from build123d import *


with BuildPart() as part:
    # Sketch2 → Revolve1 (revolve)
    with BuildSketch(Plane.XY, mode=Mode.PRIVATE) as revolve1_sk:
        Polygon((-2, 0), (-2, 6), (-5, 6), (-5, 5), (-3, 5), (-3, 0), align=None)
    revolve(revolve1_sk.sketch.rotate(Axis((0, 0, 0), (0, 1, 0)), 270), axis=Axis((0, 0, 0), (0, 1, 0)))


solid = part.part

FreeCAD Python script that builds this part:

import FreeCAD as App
import Part
import Sketcher
Q = App.Units.Quantity


def add_polygon(sketch, points):
    """Adds a closed chain of lines whose ends are joined by coincident constraints."""
    first, n = sketch.GeometryCount, len(points)
    for a, b in zip(points, points[1:] + points[:1]):
        sketch.addGeometry(Part.LineSegment(App.Vector(*a, 0), App.Vector(*b, 0)), False)
    for i in range(n):
        sketch.addConstraint(Sketcher.Constraint("Coincident", first + i, 2, first + (i + 1) % n, 1))

doc = App.newDocument("Part")
body = doc.addObject("PartDesign::Body", "Body")

# Sketch on XY plane
sketch1 = body.newObject("Sketcher::SketchObject", "Sketch")
sketch1.AttachmentSupport = (doc.getObject("XY_Plane"), [""])
sketch1.MapMode = "FlatFace"
add_polygon(sketch1, [(-2, 0), (-2, 6), (-5, 6), (-5, 5), (-3, 5), (-3, 0)])  # lines 0-5
sketch1.addConstraint([
    Sketcher.Constraint("Vertical", 0),
    Sketcher.Constraint("Horizontal", 1),
    Sketcher.Constraint("Vertical", 2),
    Sketcher.Constraint("Horizontal", 3),
    Sketcher.Constraint("Vertical", 4),
    Sketcher.Constraint("Horizontal", 5),
    Sketcher.Constraint("PointOnObject", 4, 2, -1),
    Sketcher.Constraint("Equal", 5, 2),
    Sketcher.Constraint("DistanceX", 1, 2, 1, 1, Q("3 mm")),
    Sketcher.Constraint("DistanceX", 3, 1, 3, 2, Q("2 mm")),
    Sketcher.Constraint("DistanceY", 0, 1, 0, 2, Q("6 mm")),
    Sketcher.Constraint("DistanceX", 0, 2, -1, 1, Q("2 mm")),
])
revolution = body.newObject("PartDesign::Revolution", "Revolution")
revolution.Profile = sketch1
revolution.ReferenceAxis = (sketch1, ["V_Axis"])
revolution.Angle = 360

doc.recompute()
